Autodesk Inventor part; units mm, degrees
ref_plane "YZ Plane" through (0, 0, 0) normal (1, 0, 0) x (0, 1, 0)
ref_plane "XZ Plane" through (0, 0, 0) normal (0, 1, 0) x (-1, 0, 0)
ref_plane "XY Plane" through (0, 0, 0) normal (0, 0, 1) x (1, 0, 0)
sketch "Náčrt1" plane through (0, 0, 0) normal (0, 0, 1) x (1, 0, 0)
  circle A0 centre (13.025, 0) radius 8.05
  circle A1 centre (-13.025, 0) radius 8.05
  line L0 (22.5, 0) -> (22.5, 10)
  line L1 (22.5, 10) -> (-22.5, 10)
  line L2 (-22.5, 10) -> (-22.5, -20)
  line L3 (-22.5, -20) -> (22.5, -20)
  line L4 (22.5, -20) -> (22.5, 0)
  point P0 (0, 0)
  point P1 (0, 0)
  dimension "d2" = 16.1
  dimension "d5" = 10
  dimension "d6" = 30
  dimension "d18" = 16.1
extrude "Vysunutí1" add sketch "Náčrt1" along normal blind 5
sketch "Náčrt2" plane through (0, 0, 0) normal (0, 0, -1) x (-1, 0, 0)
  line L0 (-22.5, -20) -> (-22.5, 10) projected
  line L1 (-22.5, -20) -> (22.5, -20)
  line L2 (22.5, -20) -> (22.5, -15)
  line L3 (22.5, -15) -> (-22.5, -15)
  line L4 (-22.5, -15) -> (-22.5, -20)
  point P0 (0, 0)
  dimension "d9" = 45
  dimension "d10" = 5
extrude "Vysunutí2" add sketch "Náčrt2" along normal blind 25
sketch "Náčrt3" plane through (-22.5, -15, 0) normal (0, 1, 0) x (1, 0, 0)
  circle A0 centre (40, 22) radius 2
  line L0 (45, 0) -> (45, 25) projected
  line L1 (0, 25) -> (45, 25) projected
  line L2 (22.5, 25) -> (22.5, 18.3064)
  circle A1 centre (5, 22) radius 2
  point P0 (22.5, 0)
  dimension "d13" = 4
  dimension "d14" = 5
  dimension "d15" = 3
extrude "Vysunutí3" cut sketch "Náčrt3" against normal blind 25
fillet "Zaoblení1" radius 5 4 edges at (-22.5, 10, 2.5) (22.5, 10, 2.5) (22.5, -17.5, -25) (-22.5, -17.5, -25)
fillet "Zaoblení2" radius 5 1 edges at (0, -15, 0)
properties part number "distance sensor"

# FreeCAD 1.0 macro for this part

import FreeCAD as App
import Part
import Sketcher

V = App.Vector
Q = App.Units.Quantity


def edges_at(feature, points):
    """Names of the edges that pass closest to the given points."""
    edges = feature.Shape.Edges
    near = lambda p: min(range(len(edges)), key=lambda i: edges[i].distToShape(Part.Vertex(*p))[0])
    return sorted({f"Edge{near(p) + 1}" for p in points})

doc = App.newDocument("Part")
body = doc.addObject("PartDesign::Body", "Body")

# Sketch on XY plane
sketch1 = body.newObject("Sketcher::SketchObject", "Sketch")
sketch1.AttachmentSupport = (doc.getObject("XY_Plane"), [""])
sketch1.MapMode = "FlatFace"
sketch1.addGeometry([
    Part.LineSegment(V(22, -20, 0), V(22, 10, 0)),  # 0
    Part.LineSegment(V(22, 10, 0), V(-22, 10, 0)),  # 1
    Part.LineSegment(V(-22, 10, 0), V(-22, -20, 0)),  # 2
    Part.LineSegment(V(-22, -20, 0), V(22, -20, 0)),  # 3
    Part.Circle(V(-13, 0, 0), V(0, 0, 1), 8),  # 4
    Part.Circle(V(13, 0, 0), V(0, 0, 1), 8),  # 5
], False)
sketch1.addConstraint([
    Sketcher.Constraint("Coincident", 0, 2, 1, 1),
    Sketcher.Constraint("Coincident", 1, 2, 2, 1),
    Sketcher.Constraint("Coincident", 2, 2, 3, 1),
    Sketcher.Constraint("Coincident", 3, 2, 0, 1),
    Sketcher.Constraint("Vertical", 0),
    Sketcher.Constraint("Horizontal", 1),
    Sketcher.Constraint("Vertical", 2),
    Sketcher.Constraint("Horizontal", 3),
    Sketcher.Constraint("Equal", 4, 5),
    Sketcher.Constraint("Symmetric", 4, 3, 5, 3, -1, 1),
    Sketcher.Constraint("PointOnObject", 4, 3, -1),
    Sketcher.Constraint("Diameter", 4, Q("16.1 mm")),
    Sketcher.Constraint("DistanceY", 0, 1, 0, 2, Q("30 mm")),
    Sketcher.Constraint("DistanceY", -1, 1, 0, 2, Q("10 mm")),
    Sketcher.Constraint("DistanceX", 1, 2, 1, 1, Q("45 mm")),
    Sketcher.Constraint("DistanceX", -1, 1, 0, 2, Q("22.5 mm")),
    Sketcher.Constraint("DistanceX", 4, 3, 5, 3, Q("26.05 mm")),
])
pad1 = body.newObject("PartDesign::Pad", "Pad")
pad1.Profile = sketch1
pad1.Length = 5

# Sketch on XY plane
sketch2 = body.newObject("Sketcher::SketchObject", "Sketch001")
sketch2.AttachmentSupport = (doc.getObject("XY_Plane"), [""])
sketch2.MapMode = "FlatFace"
sketch2.addGeometry([
    Part.LineSegment(V(22, -15, 0), V(22, -20, 0)),
    Part.LineSegment(V(22, -20, 0), V(-22, -20, 0)),
    Part.LineSegment(V(-22, -20, 0), V(-22, -15, 0)),
    Part.LineSegment(V(-22, -15, 0), V(22, -15, 0)),
], False)
sketch2.addConstraint([
    Sketcher.Constraint("Coincident", 0, 2, 1, 1),
    Sketcher.Constraint("Coincident", 1, 2, 2, 1),
    Sketcher.Constraint("Coincident", 2, 2, 3, 1),
    Sketcher.Constraint("Coincident", 3, 2, 0, 1),
    Sketcher.Constraint("Vertical", 0),
    Sketcher.Constraint("Horizontal", 1),
    Sketcher.Constraint("Vertical", 2),
    Sketcher.Constraint("Horizontal", 3),
    Sketcher.Constraint("DistanceX", 1, 2, 1, 1, Q("45 mm")),
    Sketcher.Constraint("DistanceY", 0, 2, 0, 1, Q("5 mm")),
    Sketcher.Constraint("DistanceY", 0, 2, -1, 1, Q("20 mm")),
    Sketcher.Constraint("DistanceX", -1, 1, 0, 2, Q("22.5 mm")),
])
pad2 = body.newObject("PartDesign::Pad", "Pad001")
pad2.Profile = sketch2
pad2.Length = 25
pad2.Reversed = True

# Sketch on XZ plane
sketch3 = body.newObject("Sketcher::SketchObject", "Sketch002")
sketch3.AttachmentSupport = (doc.getObject("XZ_Plane"), [""])
sketch3.MapMode = "FlatFace"
sketch3.AttachmentOffset = App.Placement(V(0, 0, 15), App.Rotation())
sketch3.addGeometry([
    Part.Circle(V(17.5, -22, 0), V(0, 0, 1), 2),
    Part.Circle(V(-17.5, -22, 0), V(0, 0, 1), 2),
], False)
sketch3.addConstraint([
    Sketcher.Constraint("Equal", 0, 1),
    Sketcher.Constraint("Symmetric", 0, 3, 1, 3, -2),
    Sketcher.Constraint("Diameter", 0, Q("4 mm")),
    Sketcher.Constraint("DistanceY", 0, 3, -1, 1, Q("22 mm")),
    Sketcher.Constraint("DistanceX", 1, 3, 0, 3, Q("35 mm")),
])
pocket1 = body.newObject("PartDesign::Pocket", "Pocket")
pocket1.Profile = sketch3
pocket1.Length = 25
pocket1.Reversed = True
doc.recompute()

fillet = body.newObject("PartDesign::Fillet", "Fillet")
fillet.Base = (pocket1, edges_at(pocket1, [
    (-22.5, 10, 2.5),
    (22.5, 10, 2.5),
    (22.5, -17.5, -25),
    (-22.5, -17.5, -25),
]))
fillet.Radius = 5
doc.recompute()

fillet2 = body.newObject("PartDesign::Fillet", "Fillet001")
fillet2.Base = (fillet, edges_at(fillet, [(0, -15, 0)]))
fillet2.Radius = 5

doc.recompute()
